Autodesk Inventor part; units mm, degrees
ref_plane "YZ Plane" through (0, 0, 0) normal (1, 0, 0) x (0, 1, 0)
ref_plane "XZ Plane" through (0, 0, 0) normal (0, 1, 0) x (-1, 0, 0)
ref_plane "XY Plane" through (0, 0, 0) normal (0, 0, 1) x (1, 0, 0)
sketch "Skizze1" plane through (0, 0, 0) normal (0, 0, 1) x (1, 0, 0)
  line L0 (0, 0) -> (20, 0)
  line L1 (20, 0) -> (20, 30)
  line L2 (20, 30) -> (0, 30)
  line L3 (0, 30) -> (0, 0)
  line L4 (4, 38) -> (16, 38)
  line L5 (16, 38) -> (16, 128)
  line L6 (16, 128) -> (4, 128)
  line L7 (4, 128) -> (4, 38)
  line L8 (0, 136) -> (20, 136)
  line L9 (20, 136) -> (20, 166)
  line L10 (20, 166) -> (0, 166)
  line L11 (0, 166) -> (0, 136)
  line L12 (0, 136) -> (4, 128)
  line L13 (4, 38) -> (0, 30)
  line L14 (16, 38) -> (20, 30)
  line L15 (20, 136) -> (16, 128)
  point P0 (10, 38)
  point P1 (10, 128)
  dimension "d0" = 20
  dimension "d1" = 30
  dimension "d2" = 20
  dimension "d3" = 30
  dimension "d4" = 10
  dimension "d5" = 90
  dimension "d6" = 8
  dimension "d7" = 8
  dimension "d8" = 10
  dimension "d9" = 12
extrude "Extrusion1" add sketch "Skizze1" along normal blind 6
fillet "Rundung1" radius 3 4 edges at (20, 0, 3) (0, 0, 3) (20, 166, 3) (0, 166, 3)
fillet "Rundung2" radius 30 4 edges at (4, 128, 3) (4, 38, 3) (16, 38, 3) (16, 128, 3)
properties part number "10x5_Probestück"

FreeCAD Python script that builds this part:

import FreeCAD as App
import Part
import Sketcher


def edges_at(feature, points):
    """Names of the edges that pass closest to the given points."""
    edges = feature.Shape.Edges
    near = lambda p: min(range(len(edges)), key=lambda i: edges[i].distToShape(Part.Vertex(*p))[0])
    return sorted({f"Edge{near(p) + 1}" for p in points})

doc = App.newDocument("Part")
params = doc.addObject("Spreadsheet::Sheet", "Params")
for row, (alias, value) in enumerate([
    ("sketch1_width", "20 mm"),
    ("sketch1_height", "30 mm"),
    ("sketch1_height2", "90 mm"),
    ("pad1_length", "6 mm"),
    ("fillet_radius", "3 mm"),
    ("fillet2_radius", "30 mm"),
], start=1):
    params.set(f"A{row}", alias)
    params.set(f"B{row}", "=" + value)
    params.setAlias(f"B{row}", alias)

body = doc.addObject("PartDesign::Body", "Body")

# Sketch on XY plane
sketch1 = body.newObject("Sketcher::SketchObject", "Sketch")
sketch1.AttachmentSupport = (doc.getObject("XY_Plane"), [""])
sketch1.MapMode = "FlatFace"
sketch1.addGeometry([
    Part.LineSegment(App.Vector(0, 30, 0), App.Vector(0, 0, 0)),  # 0
    Part.LineSegment(App.Vector(0, 0, 0), App.Vector(20, 0, 0)),  # 1
    Part.LineSegment(App.Vector(20, 0, 0), App.Vector(20, 30, 0)),  # 2
    Part.LineSegment(App.Vector(20, 30, 0), App.Vector(16, 38, 0)),  # 3
    Part.LineSegment(App.Vector(16, 38, 0), App.Vector(16, 128, 0)),  # 4
    Part.LineSegment(App.Vector(16, 128, 0), App.Vector(20, 136, 0)),  # 5
    Part.LineSegment(App.Vector(20, 136, 0), App.Vector(20, 166, 0)),  # 6
    Part.LineSegment(App.Vector(20, 166, 0), App.Vector(0, 166, 0)),  # 7
    Part.LineSegment(App.Vector(0, 166, 0), App.Vector(0, 136, 0)),  # 8
    Part.LineSegment(App.Vector(0, 136, 0), App.Vector(4, 128, 0)),  # 9
    Part.LineSegment(App.Vector(4, 128, 0), App.Vector(4, 38, 0)),  # 10
    Part.LineSegment(App.Vector(4, 38, 0), App.Vector(0, 30, 0)),  # 11
], False)
sketch1.addConstraint([
    Sketcher.Constraint("Coincident", 0, 2, 1, 1),
    Sketcher.Constraint("Coincident", 1, 2, 2, 1),
    Sketcher.Constraint("Coincident", 2, 2, 3, 1),
    Sketcher.Constraint("Coincident", 3, 2, 4, 1),
    Sketcher.Constraint("Coincident", 4, 2, 5, 1),
    Sketcher.Constraint("Coincident", 5, 2, 6, 1),
    Sketcher.Constraint("Coincident", 6, 2, 7, 1),
    Sketcher.Constraint("Coincident", 7, 2, 8, 1),
    Sketcher.Constraint("Coincident", 8, 2, 9, 1),
    Sketcher.Constraint("Coincident", 9, 2, 10, 1),
    Sketcher.Constraint("Coincident", 10, 2, 11, 1),
    Sketcher.Constraint("Coincident", 11, 2, 0, 1),
    Sketcher.Constraint("Vertical", 0),
    Sketcher.Constraint("Horizontal", 1),
    Sketcher.Constraint("Vertical", 2),
    Sketcher.Constraint("Vertical", 4),
    Sketcher.Constraint("Vertical", 6),
    Sketcher.Constraint("Horizontal", 7),
    Sketcher.Constraint("Vertical", 8),
    Sketcher.Constraint("Vertical", 10),
    Sketcher.Constraint("Coincident", 0, 2, -1, 1),
    Sketcher.Constraint("PointOnObject", 7, 2, -2),
    Sketcher.Constraint("Parallel", 3, 9),
    Sketcher.Constraint("Parallel", 5, 11),
    Sketcher.Constraint("Horizontal", 5, 2, 8, 2),
    Sketcher.Constraint("Horizontal", 4, 2, 9, 2),
    Sketcher.Constraint("Horizontal", 3, 2, 10, 2),
    Sketcher.Constraint("Horizontal", 2, 2, 11, 2),
    Sketcher.Constraint("Vertical", 2, 2, 5, 2),
    Sketcher.Constraint("Equal", 2, 6),
    Sketcher.Constraint("DistanceX", 1, 1, 1, 2, 20.0),
    Sketcher.Constraint("DistanceY", 0, 2, 0, 1, 30.0),
    Sketcher.Constraint("DistanceY", 4, 1, 4, 2, 90.0),
    Sketcher.Constraint("DistanceY", 2, 2, 3, 2, 8.0),
    Sketcher.Constraint("DistanceX", 9, 2, 4, 2, 12.0),
])
sketch1.setExpression("Constraints[30]", "Params.sketch1_width")
sketch1.setExpression("Constraints[31]", "Params.sketch1_height")
sketch1.setExpression("Constraints[32]", "Params.sketch1_height2")
pad1 = body.newObject("PartDesign::Pad", "Pad")
pad1.Profile = sketch1
pad1.setExpression("Length", "Params.pad1_length")
doc.recompute()

fillet = body.newObject("PartDesign::Fillet", "Fillet")
fillet.Base = (pad1, edges_at(pad1, [
    (20, 0, 3),
    (0, 0, 3),
    (20, 166, 3),
    (0, 166, 3),
]))
fillet.setExpression("Radius", "Params.fillet_radius")
doc.recompute()

fillet2 = body.newObject("PartDesign::Fillet", "Fillet001")
fillet2.Base = (fillet, edges_at(fillet, [
    (4, 128, 3),
    (4, 38, 3),
    (16, 38, 3),
    (16, 128, 3),
]))
fillet2.setExpression("Radius", "Params.fillet2_radius")

doc.recompute()
